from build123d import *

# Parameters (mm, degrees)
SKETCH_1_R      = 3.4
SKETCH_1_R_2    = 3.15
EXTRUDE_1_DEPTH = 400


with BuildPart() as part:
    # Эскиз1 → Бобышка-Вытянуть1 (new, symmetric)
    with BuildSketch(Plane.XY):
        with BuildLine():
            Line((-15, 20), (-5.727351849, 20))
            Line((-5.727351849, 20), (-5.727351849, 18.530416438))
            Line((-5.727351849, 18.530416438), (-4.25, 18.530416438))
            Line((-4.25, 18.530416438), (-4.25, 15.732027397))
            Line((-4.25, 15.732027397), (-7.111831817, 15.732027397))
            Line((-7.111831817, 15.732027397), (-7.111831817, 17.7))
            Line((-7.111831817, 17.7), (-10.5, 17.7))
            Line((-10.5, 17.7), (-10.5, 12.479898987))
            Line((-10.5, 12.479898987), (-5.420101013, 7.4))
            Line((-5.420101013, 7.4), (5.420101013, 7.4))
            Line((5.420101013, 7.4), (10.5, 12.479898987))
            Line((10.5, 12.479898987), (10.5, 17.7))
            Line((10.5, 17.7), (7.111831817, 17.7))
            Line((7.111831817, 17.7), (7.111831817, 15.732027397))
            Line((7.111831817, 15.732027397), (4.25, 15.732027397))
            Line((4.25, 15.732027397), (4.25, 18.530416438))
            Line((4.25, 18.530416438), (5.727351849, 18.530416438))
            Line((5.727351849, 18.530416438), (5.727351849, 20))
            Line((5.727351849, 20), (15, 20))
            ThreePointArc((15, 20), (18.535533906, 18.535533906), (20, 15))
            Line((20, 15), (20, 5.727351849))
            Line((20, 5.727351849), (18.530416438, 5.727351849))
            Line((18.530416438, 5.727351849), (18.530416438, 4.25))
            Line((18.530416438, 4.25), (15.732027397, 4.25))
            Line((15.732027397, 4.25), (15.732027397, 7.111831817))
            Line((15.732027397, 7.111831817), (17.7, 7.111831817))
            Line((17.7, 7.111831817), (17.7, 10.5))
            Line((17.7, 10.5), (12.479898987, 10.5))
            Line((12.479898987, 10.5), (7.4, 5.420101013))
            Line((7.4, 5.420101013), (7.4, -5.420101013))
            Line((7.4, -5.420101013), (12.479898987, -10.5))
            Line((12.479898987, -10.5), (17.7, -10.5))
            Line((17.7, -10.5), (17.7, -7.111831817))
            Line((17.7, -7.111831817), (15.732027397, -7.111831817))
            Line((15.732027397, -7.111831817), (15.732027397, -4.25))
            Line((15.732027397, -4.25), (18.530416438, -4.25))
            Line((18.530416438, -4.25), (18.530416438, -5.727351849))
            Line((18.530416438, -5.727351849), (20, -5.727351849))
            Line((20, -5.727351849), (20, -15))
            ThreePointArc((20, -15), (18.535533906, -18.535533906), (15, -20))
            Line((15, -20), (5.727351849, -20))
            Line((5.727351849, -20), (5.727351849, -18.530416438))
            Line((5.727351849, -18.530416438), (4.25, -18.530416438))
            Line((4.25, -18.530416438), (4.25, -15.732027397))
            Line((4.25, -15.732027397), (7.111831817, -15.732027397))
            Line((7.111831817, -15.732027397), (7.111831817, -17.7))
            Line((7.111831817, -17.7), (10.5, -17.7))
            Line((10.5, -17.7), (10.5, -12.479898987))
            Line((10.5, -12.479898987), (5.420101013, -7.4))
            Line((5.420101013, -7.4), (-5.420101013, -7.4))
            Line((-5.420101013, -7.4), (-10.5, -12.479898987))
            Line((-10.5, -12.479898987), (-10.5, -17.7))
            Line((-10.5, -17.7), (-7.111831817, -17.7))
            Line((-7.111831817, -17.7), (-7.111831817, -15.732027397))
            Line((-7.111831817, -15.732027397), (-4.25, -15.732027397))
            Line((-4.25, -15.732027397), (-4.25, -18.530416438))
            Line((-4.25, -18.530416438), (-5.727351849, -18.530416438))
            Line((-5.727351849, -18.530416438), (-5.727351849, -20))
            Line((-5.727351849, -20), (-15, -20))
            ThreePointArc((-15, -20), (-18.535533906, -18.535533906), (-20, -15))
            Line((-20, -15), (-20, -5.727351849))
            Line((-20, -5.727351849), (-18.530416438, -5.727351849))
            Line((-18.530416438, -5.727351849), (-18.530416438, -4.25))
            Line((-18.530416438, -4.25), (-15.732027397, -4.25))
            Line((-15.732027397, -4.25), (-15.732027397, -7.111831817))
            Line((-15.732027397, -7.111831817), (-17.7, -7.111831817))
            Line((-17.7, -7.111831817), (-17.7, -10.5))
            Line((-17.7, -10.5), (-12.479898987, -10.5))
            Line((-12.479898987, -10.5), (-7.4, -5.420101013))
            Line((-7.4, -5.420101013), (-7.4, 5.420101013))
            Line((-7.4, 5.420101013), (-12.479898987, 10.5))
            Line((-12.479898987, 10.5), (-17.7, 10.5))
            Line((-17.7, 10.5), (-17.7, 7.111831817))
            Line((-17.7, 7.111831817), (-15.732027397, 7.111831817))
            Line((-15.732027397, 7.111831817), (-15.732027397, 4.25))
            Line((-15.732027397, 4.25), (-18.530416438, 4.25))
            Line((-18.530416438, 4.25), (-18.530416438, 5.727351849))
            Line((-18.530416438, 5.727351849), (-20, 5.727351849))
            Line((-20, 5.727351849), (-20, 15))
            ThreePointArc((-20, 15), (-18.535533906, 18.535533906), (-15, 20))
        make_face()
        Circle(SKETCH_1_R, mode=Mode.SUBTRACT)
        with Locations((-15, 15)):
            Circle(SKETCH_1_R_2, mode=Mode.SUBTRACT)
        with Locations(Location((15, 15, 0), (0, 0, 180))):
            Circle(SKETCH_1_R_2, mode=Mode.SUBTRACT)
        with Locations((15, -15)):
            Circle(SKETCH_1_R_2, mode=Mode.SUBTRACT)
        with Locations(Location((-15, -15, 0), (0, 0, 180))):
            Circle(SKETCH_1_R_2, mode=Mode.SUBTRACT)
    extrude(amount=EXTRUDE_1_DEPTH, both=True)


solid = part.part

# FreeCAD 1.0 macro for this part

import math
import FreeCAD as App
import Part
import Sketcher

V = App.Vector

doc = App.newDocument("Part")
params = doc.addObject("Spreadsheet::Sheet", "Params")
for row, (alias, value) in enumerate([
    ("sketch1_radius", "5 mm"),
    ("sketch1_diameter", "6.3 mm"),
    ("sketch1_diameter2", "6.8 mm"),
    ("pad1_length", "800 mm"),
], start=1):
    params.set(f"A{row}", alias)
    params.set(f"B{row}", "=" + value)
    params.setAlias(f"B{row}", alias)

body = doc.addObject("PartDesign::Body", "Body")

# Sketch on XY plane
sketch1 = body.newObject("Sketcher::SketchObject", "Sketch")
sketch1.AttachmentSupport = (doc.getObject("XY_Plane"), [""])
sketch1.MapMode = "FlatFace"
sketch1.addGeometry([
    Part.LineSegment(V(-5.7, 20, 0), V(-15, 20, 0)),  # 0
    Part.ArcOfCircle(Part.Circle(V(-15, 15, 0), V(0, 0, 1), 5), math.radians(90), math.radians(180)),  # 1
    Part.LineSegment(V(-20, 15, 0), V(-20, 5.7, 0)),  # 2
    Part.LineSegment(V(-20, 5.7, 0), V(-18.5, 5.7, 0)),  # 3
    Part.LineSegment(V(-18.5, 5.7, 0), V(-18.5, 4.2, 0)),  # 4
    Part.LineSegment(V(-18.5, 4.2, 0), V(-15.7, 4.2, 0)),  # 5
    Part.LineSegment(V(-15.7, 4.2, 0), V(-15.7, 7.1, 0)),  # 6
    Part.LineSegment(V(-15.7, 7.1, 0), V(-17.7, 7.1, 0)),  # 7
    Part.LineSegment(V(-17.7, 7.1, 0), V(-17.7, 10.5, 0)),  # 8
    Part.LineSegment(V(-17.7, 10.5, 0), V(-12.5, 10.5, 0)),  # 9
    Part.LineSegment(V(-12.5, 10.5, 0), V(-7.4, 5.4, 0)),  # 10
    Part.LineSegment(V(-7.4, 5.4, 0), V(-7.4, -5.4, 0)),  # 11
    Part.LineSegment(V(-7.4, -5.4, 0), V(-12.5, -10.5, 0)),  # 12
    Part.LineSegment(V(-12.5, -10.5, 0), V(-17.7, -10.5, 0)),  # 13
    Part.LineSegment(V(-17.7, -10.5, 0), V(-17.7, -7.1, 0)),  # 14
    Part.LineSegment(V(-17.7, -7.1, 0), V(-15.7, -7.1, 0)),  # 15
    Part.LineSegment(V(-15.7, -7.1, 0), V(-15.7, -4.2, 0)),  # 16
    Part.LineSegment(V(-15.7, -4.2, 0), V(-18.5, -4.2, 0)),  # 17
    Part.LineSegment(V(-18.5, -4.2, 0), V(-18.5, -5.7, 0)),  # 18
    Part.LineSegment(V(-18.5, -5.7, 0), V(-20, -5.7, 0)),  # 19
    Part.LineSegment(V(-20, -5.7, 0), V(-20, -15, 0)),  # 20
    Part.ArcOfCircle(Part.Circle(V(-15, -15, 0), V(0, 0, 1), 5), math.radians(180), math.radians(270)),  # 21
    Part.LineSegment(V(-15, -20, 0), V(-5.7, -20, 0)),  # 22
    Part.LineSegment(V(-5.7, -20, 0), V(-5.7, -18.5, 0)),  # 23
    Part.LineSegment(V(-5.7, -18.5, 0), V(-4.2, -18.5, 0)),  # 24
    Part.LineSegment(V(-4.2, -18.5, 0), V(-4.2, -15.7, 0)),  # 25
    Part.LineSegment(V(-4.2, -15.7, 0), V(-7.1, -15.7, 0)),  # 26
    Part.LineSegment(V(-7.1, -15.7, 0), V(-7.1, -17.7, 0)),  # 27
    Part.LineSegment(V(-7.1, -17.7, 0), V(-10.5, -17.7, 0)),  # 28
    Part.LineSegment(V(-10.5, -17.7, 0), V(-10.5, -12.5, 0)),  # 29
    Part.LineSegment(V(-10.5, -12.5, 0), V(-5.4, -7.4, 0)),  # 30
    Part.LineSegment(V(-5.4, -7.4, 0), V(5.4, -7.4, 0)),  # 31
    Part.LineSegment(V(5.4, -7.4, 0), V(10.5, -12.5, 0)),  # 32
    Part.LineSegment(V(10.5, -12.5, 0), V(10.5, -17.7, 0)),  # 33
    Part.LineSegment(V(10.5, -17.7, 0), V(7.1, -17.7, 0)),  # 34
    Part.LineSegment(V(7.1, -17.7, 0), V(7.1, -15.7, 0)),  # 35
    Part.LineSegment(V(7.1, -15.7, 0), V(4.2, -15.7, 0)),  # 36
    Part.LineSegment(V(4.2, -15.7, 0), V(4.2, -18.5, 0)),  # 37
    Part.LineSegment(V(4.2, -18.5, 0), V(5.7, -18.5, 0)),  # 38
    Part.LineSegment(V(5.7, -18.5, 0), V(5.7, -20, 0)),  # 39
    Part.LineSegment(V(5.7, -20, 0), V(15, -20, 0)),  # 40
    Part.ArcOfCircle(Part.Circle(V(15, -15, 0), V(0, 0, 1), 5), math.radians(-90), math.radians(0)),  # 41
    Part.LineSegment(V(20, -15, 0), V(20, -5.7, 0)),  # 42
    Part.LineSegment(V(20, -5.7, 0), V(18.5, -5.7, 0)),  # 43
    Part.LineSegment(V(18.5, -5.7, 0), V(18.5, -4.2, 0)),  # 44
    Part.LineSegment(V(18.5, -4.2, 0), V(15.7, -4.2, 0)),  # 45
    Part.LineSegment(V(15.7, -4.2, 0), V(15.7, -7.1, 0)),  # 46
    Part.LineSegment(V(15.7, -7.1, 0), V(17.7, -7.1, 0)),  # 47
    Part.LineSegment(V(17.7, -7.1, 0), V(17.7, -10.5, 0)),  # 48
    Part.LineSegment(V(17.7, -10.5, 0), V(12.5, -10.5, 0)),  # 49
    Part.LineSegment(V(12.5, -10.5, 0), V(7.4, -5.4, 0)),  # 50
    Part.LineSegment(V(7.4, -5.4, 0), V(7.4, 5.4, 0)),  # 51
    Part.LineSegment(V(7.4, 5.4, 0), V(12.5, 10.5, 0)),  # 52
    Part.LineSegment(V(12.5, 10.5, 0), V(17.7, 10.5, 0)),  # 53
    Part.LineSegment(V(17.7, 10.5, 0), V(17.7, 7.1, 0)),  # 54
    Part.LineSegment(V(17.7, 7.1, 0), V(15.7, 7.1, 0)),  # 55
    Part.LineSegment(V(15.7, 7.1, 0), V(15.7, 4.2, 0)),  # 56
    Part.LineSegment(V(15.7, 4.2, 0), V(18.5, 4.2, 0)),  # 57
    Part.LineSegment(V(18.5, 4.2, 0), V(18.5, 5.7, 0)),  # 58
    Part.LineSegment(V(18.5, 5.7, 0), V(20, 5.7, 0)),  # 59
    Part.LineSegment(V(20, 5.7, 0), V(20, 15, 0)),  # 60
    Part.ArcOfCircle(Part.Circle(V(15, 15, 0), V(0, 0, 1), 5), math.radians(0), math.radians(90)),  # 61
    Part.LineSegment(V(15, 20, 0), V(5.7, 20, 0)),  # 62
    Part.LineSegment(V(5.7, 20, 0), V(5.7, 18.5, 0)),  # 63
    Part.LineSegment(V(5.7, 18.5, 0), V(4.2, 18.5, 0)),  # 64
    Part.LineSegment(V(4.2, 18.5, 0), V(4.2, 15.7, 0)),  # 65
    Part.LineSegment(V(4.2, 15.7, 0), V(7.1, 15.7, 0)),  # 66
    Part.LineSegment(V(7.1, 15.7, 0), V(7.1, 17.7, 0)),  # 67
    Part.LineSegment(V(7.1, 17.7, 0), V(10.5, 17.7, 0)),  # 68
    Part.LineSegment(V(10.5, 17.7, 0), V(10.5, 12.5, 0)),  # 69
    Part.LineSegment(V(10.5, 12.5, 0), V(5.4, 7.4, 0)),  # 70
    Part.LineSegment(V(5.4, 7.4, 0), V(-5.4, 7.4, 0)),  # 71
    Part.LineSegment(V(-5.4, 7.4, 0), V(-10.5, 12.5, 0)),  # 72
    Part.LineSegment(V(-10.5, 12.5, 0), V(-10.5, 17.7, 0)),  # 73
    Part.LineSegment(V(-10.5, 17.7, 0), V(-7.1, 17.7, 0)),  # 74
    Part.LineSegment(V(-7.1, 17.7, 0), V(-7.1, 15.7, 0)),  # 75
    Part.LineSegment(V(-7.1, 15.7, 0), V(-4.2, 15.7, 0)),  # 76
    Part.LineSegment(V(-4.2, 15.7, 0), V(-4.2, 18.5, 0)),  # 77
    Part.LineSegment(V(-4.2, 18.5, 0), V(-5.7, 18.5, 0)),  # 78
    Part.LineSegment(V(-5.7, 18.5, 0), V(-5.7, 20, 0)),  # 79
    Part.Circle(V(15, -15, 0), V(0, 0, 1), 3.1),  # 80
    Part.Circle(V(-15, -15, 0), V(0, 0, 1), 3.1),  # 81
    Part.Circle(V(15, 15, 0), V(0, 0, 1), 3.1),  # 82
    Part.Circle(V(0, 0, 0), V(0, 0, 1), 3.4),  # 83
    Part.Circle(V(-15, 15, 0), V(0, 0, 1), 3.1),  # 84
], False)
sketch1.addConstraint([
    Sketcher.Constraint("Tangent", 0, 2, 1, 1),
    Sketcher.Constraint("Tangent", 1, 2, 2, 1),
    Sketcher.Constraint("Coincident", 2, 2, 3, 1),
    Sketcher.Constraint("Coincident", 3, 2, 4, 1),
    Sketcher.Constraint("Coincident", 4, 2, 5, 1),
    Sketcher.Constraint("Coincident", 5, 2, 6, 1),
    Sketcher.Constraint("Coincident", 6, 2, 7, 1),
    Sketcher.Constraint("Coincident", 7, 2, 8, 1),
    Sketcher.Constraint("Coincident", 8, 2, 9, 1),
    Sketcher.Constraint("Coincident", 9, 2, 10, 1),
    Sketcher.Constraint("Coincident", 10, 2, 11, 1),
    Sketcher.Constraint("Coincident", 11, 2, 12, 1),
    Sketcher.Constraint("Coincident", 12, 2, 13, 1),
    Sketcher.Constraint("Coincident", 13, 2, 14, 1),
    Sketcher.Constraint("Coincident", 14, 2, 15, 1),
    Sketcher.Constraint("Coincident", 15, 2, 16, 1),
    Sketcher.Constraint("Coincident", 16, 2, 17, 1),
    Sketcher.Constraint("Coincident", 17, 2, 18, 1),
    Sketcher.Constraint("Coincident", 18, 2, 19, 1),
    Sketcher.Constraint("Coincident", 19, 2, 20, 1),
    Sketcher.Constraint("Tangent", 20, 2, 21, 1),
    Sketcher.Constraint("Tangent", 21, 2, 22, 1),
    Sketcher.Constraint("Coincident", 22, 2, 23, 1),
    Sketcher.Constraint("Coincident", 23, 2, 24, 1),
    Sketcher.Constraint("Coincident", 24, 2, 25, 1),
    Sketcher.Constraint("Coincident", 25, 2, 26, 1),
    Sketcher.Constraint("Coincident", 26, 2, 27, 1),
    Sketcher.Constraint("Coincident", 27, 2, 28, 1),
    Sketcher.Constraint("Coincident", 28, 2, 29, 1),
    Sketcher.Constraint("Coincident", 29, 2, 30, 1),
    Sketcher.Constraint("Coincident", 30, 2, 31, 1),
    Sketcher.Constraint("Coincident", 31, 2, 32, 1),
    Sketcher.Constraint("Coincident", 32, 2, 33, 1),
    Sketcher.Constraint("Coincident", 33, 2, 34, 1),
    Sketcher.Constraint("Coincident", 34, 2, 35, 1),
    Sketcher.Constraint("Coincident", 35, 2, 36, 1),
    Sketcher.Constraint("Coincident", 36, 2, 37, 1),
    Sketcher.Constraint("Coincident", 37, 2, 38, 1),
    Sketcher.Constraint("Coincident", 38, 2, 39, 1),
    Sketcher.Constraint("Coincident", 39, 2, 40, 1),
    Sketcher.Constraint("Tangent", 40, 2, 41, 1),
    Sketcher.Constraint("Tangent", 41, 2, 42, 1),
    Sketcher.Constraint("Coincident", 42, 2, 43, 1),
    Sketcher.Constraint("Coincident", 43, 2, 44, 1),
    Sketcher.Constraint("Coincident", 44, 2, 45, 1),
    Sketcher.Constraint("Coincident", 45, 2, 46, 1),
    Sketcher.Constraint("Coincident", 46, 2, 47, 1),
    Sketcher.Constraint("Coincident", 47, 2, 48, 1),
    Sketcher.Constraint("Coincident", 48, 2, 49, 1),
    Sketcher.Constraint("Coincident", 49, 2, 50, 1),
    Sketcher.Constraint("Coincident", 50, 2, 51, 1),
    Sketcher.Constraint("Coincident", 51, 2, 52, 1),
    Sketcher.Constraint("Coincident", 52, 2, 53, 1),
    Sketcher.Constraint("Coincident", 53, 2, 54, 1),
    Sketcher.Constraint("Coincident", 54, 2, 55, 1),
    Sketcher.Constraint("Coincident", 55, 2, 56, 1),
    Sketcher.Constraint("Coincident", 56, 2, 57, 1),
    Sketcher.Constraint("Coincident", 57, 2, 58, 1),
    Sketcher.Constraint("Coincident", 58, 2, 59, 1),
    Sketcher.Constraint("Coincident", 59, 2, 60, 1),
    Sketcher.Constraint("Tangent", 60, 2, 61, 1),
    Sketcher.Constraint("Tangent", 61, 2, 62, 1),
    Sketcher.Constraint("Coincident", 62, 2, 63, 1),
    Sketcher.Constraint("Coincident", 63, 2, 64, 1),
    Sketcher.Constraint("Coincident", 64, 2, 65, 1),
    Sketcher.Constraint("Coincident", 65, 2, 66, 1),
    Sketcher.Constraint("Coincident", 66, 2, 67, 1),
    Sketcher.Constraint("Coincident", 67, 2, 68, 1),
    Sketcher.Constraint("Coincident", 68, 2, 69, 1),
    Sketcher.Constraint("Coincident", 69, 2, 70, 1),
    Sketcher.Constraint("Coincident", 70, 2, 71, 1),
    Sketcher.Constraint("Coincident", 71, 2, 72, 1),
    Sketcher.Constraint("Coincident", 72, 2, 73, 1),
    Sketcher.Constraint("Coincident", 73, 2, 74, 1),
    Sketcher.Constraint("Coincident", 74, 2, 75, 1),
    Sketcher.Constraint("Coincident", 75, 2, 76, 1),
    Sketcher.Constraint("Coincident", 76, 2, 77, 1),
    Sketcher.Constraint("Coincident", 77, 2, 78, 1),
    Sketcher.Constraint("Coincident", 78, 2, 79, 1),
    Sketcher.Constraint("Coincident", 79, 2, 0, 1),
    Sketcher.Constraint("Horizontal", 0),
    Sketcher.Constraint("Vertical", 2),
    Sketcher.Constraint("Horizontal", 3),
    Sketcher.Constraint("Vertical", 4),
    Sketcher.Constraint("Horizontal", 5),
    Sketcher.Constraint("Vertical", 6),
    Sketcher.Constraint("Horizontal", 7),
    Sketcher.Constraint("Vertical", 8),
    Sketcher.Constraint("Horizontal", 9),
    Sketcher.Constraint("Vertical", 11),
    Sketcher.Constraint("Horizontal", 13),
    Sketcher.Constraint("Vertical", 14),
    Sketcher.Constraint("Horizontal", 15),
    Sketcher.Constraint("Vertical", 16),
    Sketcher.Constraint("Horizontal", 17),
    Sketcher.Constraint("Vertical", 18),
    Sketcher.Constraint("Horizontal", 19),
    Sketcher.Constraint("Vertical", 20),
    Sketcher.Constraint("Horizontal", 22),
    Sketcher.Constraint("Vertical", 23),
    Sketcher.Constraint("Horizontal", 24),
    Sketcher.Constraint("Vertical", 25),
    Sketcher.Constraint("Horizontal", 26),
    Sketcher.Constraint("Vertical", 27),
    Sketcher.Constraint("Horizontal", 28),
    Sketcher.Constraint("Vertical", 29),
    Sketcher.Constraint("Horizontal", 31),
    Sketcher.Constraint("Vertical", 33),
    Sketcher.Constraint("Horizontal", 34),
    Sketcher.Constraint("Vertical", 35),
    Sketcher.Constraint("Horizontal", 36),
    Sketcher.Constraint("Vertical", 37),
    Sketcher.Constraint("Horizontal", 38),
    Sketcher.Constraint("Vertical", 39),
    Sketcher.Constraint("Horizontal", 40),
    Sketcher.Constraint("Vertical", 42),
    Sketcher.Constraint("Horizontal", 43),
    Sketcher.Constraint("Vertical", 44),
    Sketcher.Constraint("Horizontal", 45),
    Sketcher.Constraint("Vertical", 46),
    Sketcher.Constraint("Horizontal", 47),
    Sketcher.Constraint("Vertical", 48),
    Sketcher.Constraint("Horizontal", 49),
    Sketcher.Constraint("Vertical", 51),
    Sketcher.Constraint("Horizontal", 53),
    Sketcher.Constraint("Vertical", 54),
    Sketcher.Constraint("Horizontal", 55),
    Sketcher.Constraint("Vertical", 56),
    Sketcher.Constraint("Horizontal", 57),
    Sketcher.Constraint("Vertical", 58),
    Sketcher.Constraint("Horizontal", 59),
    Sketcher.Constraint("Vertical", 60),
    Sketcher.Constraint("Horizontal", 62),
    Sketcher.Constraint("Vertical", 63),
    Sketcher.Constraint("Horizontal", 64),
    Sketcher.Constraint("Vertical", 65),
    Sketcher.Constraint("Horizontal", 66),
    Sketcher.Constraint("Vertical", 67),
    Sketcher.Constraint("Horizontal", 68),
    Sketcher.Constraint("Vertical", 69),
    Sketcher.Constraint("Horizontal", 71),
    Sketcher.Constraint("Vertical", 73),
    Sketcher.Constraint("Horizontal", 74),
    Sketcher.Constraint("Vertical", 75),
    Sketcher.Constraint("Horizontal", 76),
    Sketcher.Constraint("Vertical", 77),
    Sketcher.Constraint("Horizontal", 78),
    Sketcher.Constraint("Vertical", 79),
    Sketcher.Constraint("Coincident", 83, 3, -1, 1),
    Sketcher.Constraint("Coincident", 80, 3, 41, 3),
    Sketcher.Constraint("Coincident", 81, 3, 21, 3),
    Sketcher.Constraint("Coincident", 82, 3, 61, 3),
    Sketcher.Constraint("Coincident", 84, 3, 1, 3),
    Sketcher.Constraint("Equal", 1, 21),
    Sketcher.Constraint("Equal", 21, 41),
    Sketcher.Constraint("Equal", 41, 61),
    Sketcher.Constraint("Equal", 80, 81),
    Sketcher.Constraint("Equal", 81, 82),
    Sketcher.Constraint("Equal", 82, 84),
    Sketcher.Constraint("Symmetric", 1, 3, 41, 3, -1, 1),
    Sketcher.Constraint("Symmetric", 21, 3, 61, 3, -1, 1),
    Sketcher.Constraint("Symmetric", 3, 2, 43, 2, -1, 1),
    Sketcher.Constraint("Symmetric", 5, 2, 45, 2, -1, 1),
    Sketcher.Constraint("Symmetric", 7, 2, 47, 2, -1, 1),
    Sketcher.Constraint("Symmetric", 9, 2, 49, 2, -1, 1),
    Sketcher.Constraint("Symmetric", 10, 2, 50, 2, -1, 1),
    Sketcher.Constraint("Symmetric", 12, 2, 52, 2, -1, 1),
    Sketcher.Constraint("Symmetric", 14, 2, 54, 2, -1, 1),
    Sketcher.Constraint("Symmetric", 16, 2, 56, 2, -1, 1),
    Sketcher.Constraint("Symmetric", 18, 2, 58, 2, -1, 1),
    Sketcher.Constraint("Symmetric", 23, 2, 63, 2, -1, 1),
    Sketcher.Constraint("Symmetric", 25, 2, 65, 2, -1, 1),
    Sketcher.Constraint("Symmetric", 27, 2, 67, 2, -1, 1),
    Sketcher.Constraint("Symmetric", 29, 2, 69, 2, -1, 1),
    Sketcher.Constraint("Symmetric", 30, 2, 70, 2, -1, 1),
    Sketcher.Constraint("Symmetric", 32, 2, 72, 2, -1, 1),
    Sketcher.Constraint("Symmetric", 34, 2, 74, 2, -1, 1),
    Sketcher.Constraint("Symmetric", 36, 2, 76, 2, -1, 1),
    Sketcher.Constraint("Symmetric", 38, 2, 78, 2, -1, 1),
    Sketcher.Constraint("Symmetric", 21, 3, 41, 3, -2),
    Sketcher.Constraint("Symmetric", 29, 2, 32, 2, -2),
    Sketcher.Constraint("Symmetric", 27, 2, 34, 2, -2),
    Sketcher.Constraint("Symmetric", 25, 2, 36, 2, -2),
    Sketcher.Constraint("Symmetric", 23, 2, 38, 2, -2),
    Sketcher.Constraint("Symmetric", 18, 2, 43, 2, -2),
    Sketcher.Constraint("Symmetric", 16, 2, 45, 2, -2),
    Sketcher.Constraint("Symmetric", 14, 2, 47, 2, -2),
    Sketcher.Constraint("Symmetric", 12, 2, 49, 2, -2),
    Sketcher.Constraint("Perpendicular", 10, 12),
    Sketcher.Constraint("Parallel", 12, 30),
    Sketcher.Constraint("Perpendicular", 30, 32),
    Sketcher.Constraint("Perpendicular", 50, 52),
    Sketcher.Constraint("Perpendicular", 70, 72),
    Sketcher.Constraint("Horizontal", 11, 2, 50, 2),
    Sketcher.Constraint("Equal", 62, 2),
    Sketcher.Constraint("Equal", 78, 4),
    Sketcher.Constraint("Equal", 76, 6),
    Sketcher.Constraint("Equal", 74, 8),
    Sketcher.Constraint("Equal", 71, 11),
    Sketcher.Constraint("Equal", 59, 23),
    Sketcher.Constraint("Equal", 57, 25),
    Sketcher.Constraint("Equal", 55, 27),
    Sketcher.Constraint("Equal", 53, 29),
    Sketcher.Constraint("Equal", 12, 30),
    Sketcher.Constraint("Radius", 1, 5.0),
    Sketcher.Constraint("Diameter", 80, 6.3),
    Sketcher.Constraint("Diameter", 83, 6.8),
    Sketcher.Constraint("DistanceX", 1, 3, -1, 1, 15.0),
    Sketcher.Constraint("DistanceX", 7, 2, -1, 1, 17.7),
    Sketcher.Constraint("DistanceY", -1, 1, 8, 2, 10.5),
    Sketcher.Constraint("DistanceX", 10, 2, -1, 1, 7.4),
    Sketcher.Constraint("DistanceY", -1, 1, 4, 2, 4.25),
    Sketcher.Constraint("DistanceX", 9, 1, 9, 2, 5.220101),
    Sketcher.Constraint("DistanceX", 0, 2, 0, 1, 9.272648),
    Sketcher.Constraint("DistanceX", 5, 1, 5, 2, 2.798389),
    Sketcher.Constraint("DistanceX", 26, 2, 26, 1, 2.861832),
    Sketcher.Constraint("DistanceX", 3, 1, 3, 2, 1.469584),
])
sketch1.setExpression("Constraints[204]", "Params.sketch1_radius")
sketch1.setExpression("Constraints[205]", "Params.sketch1_diameter")
sketch1.setExpression("Constraints[206]", "Params.sketch1_diameter2")
pad1 = body.newObject("PartDesign::Pad", "Pad")
pad1.Profile = sketch1
pad1.setExpression("Length", "Params.pad1_length")
pad1.Midplane = True

doc.recompute()
